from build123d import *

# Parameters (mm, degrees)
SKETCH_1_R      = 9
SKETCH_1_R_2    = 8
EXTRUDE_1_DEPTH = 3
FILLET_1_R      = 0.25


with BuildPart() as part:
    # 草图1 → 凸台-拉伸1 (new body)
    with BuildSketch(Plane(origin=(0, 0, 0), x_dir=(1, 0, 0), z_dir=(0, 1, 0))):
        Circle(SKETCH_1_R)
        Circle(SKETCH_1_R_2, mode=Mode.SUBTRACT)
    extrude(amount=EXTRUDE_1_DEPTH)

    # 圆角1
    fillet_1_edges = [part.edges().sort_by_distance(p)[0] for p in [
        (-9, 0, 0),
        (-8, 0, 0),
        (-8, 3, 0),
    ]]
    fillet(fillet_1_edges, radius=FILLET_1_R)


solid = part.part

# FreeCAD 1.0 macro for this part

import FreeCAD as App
import Part
import Sketcher


def edges_at(feature, points):
    """Names of the edges that pass closest to the given points."""
    edges = feature.Shape.Edges
    near = lambda p: min(range(len(edges)), key=lambda i: edges[i].distToShape(Part.Vertex(*p))[0])
    return sorted({f"Edge{near(p) + 1}" for p in points})

doc = App.newDocument("Part")
body = doc.addObject("PartDesign::Body", "Body")

# Sketch on XZ plane
sketch1 = body.newObject("Sketcher::SketchObject", "Sketch")
sketch1.AttachmentSupport = (doc.getObject("XZ_Plane"), [""])
sketch1.MapMode = "FlatFace"
sketch1.addGeometry(Part.Circle(App.Vector(0, 0, 0), App.Vector(0, 0, 1), 9), False)
sketch1.addGeometry(Part.Circle(App.Vector(0, 0, 0), App.Vector(0, 0, 1), 8), False)
sketch1.addConstraint(Sketcher.Constraint("Coincident", 0, 3, -1, 1))
sketch1.addConstraint(Sketcher.Constraint("Coincident", 1, 3, -1, 1))
sketch1.addConstraint(Sketcher.Constraint("Diameter", 0, 18.0))
sketch1.addConstraint(Sketcher.Constraint("Diameter", 1, 16.0))
pad1 = body.newObject("PartDesign::Pad", "Pad")
pad1.Profile = sketch1
pad1.Length = 3
pad1.Reversed = True
doc.recompute()

fillet = body.newObject("PartDesign::Fillet", "Fillet")
fillet.Base = (pad1, edges_at(pad1, [(-9, 0, 0), (-8, 0, 0), (-8, 3, 0)]))
fillet.Radius = 0.25

doc.recompute()
